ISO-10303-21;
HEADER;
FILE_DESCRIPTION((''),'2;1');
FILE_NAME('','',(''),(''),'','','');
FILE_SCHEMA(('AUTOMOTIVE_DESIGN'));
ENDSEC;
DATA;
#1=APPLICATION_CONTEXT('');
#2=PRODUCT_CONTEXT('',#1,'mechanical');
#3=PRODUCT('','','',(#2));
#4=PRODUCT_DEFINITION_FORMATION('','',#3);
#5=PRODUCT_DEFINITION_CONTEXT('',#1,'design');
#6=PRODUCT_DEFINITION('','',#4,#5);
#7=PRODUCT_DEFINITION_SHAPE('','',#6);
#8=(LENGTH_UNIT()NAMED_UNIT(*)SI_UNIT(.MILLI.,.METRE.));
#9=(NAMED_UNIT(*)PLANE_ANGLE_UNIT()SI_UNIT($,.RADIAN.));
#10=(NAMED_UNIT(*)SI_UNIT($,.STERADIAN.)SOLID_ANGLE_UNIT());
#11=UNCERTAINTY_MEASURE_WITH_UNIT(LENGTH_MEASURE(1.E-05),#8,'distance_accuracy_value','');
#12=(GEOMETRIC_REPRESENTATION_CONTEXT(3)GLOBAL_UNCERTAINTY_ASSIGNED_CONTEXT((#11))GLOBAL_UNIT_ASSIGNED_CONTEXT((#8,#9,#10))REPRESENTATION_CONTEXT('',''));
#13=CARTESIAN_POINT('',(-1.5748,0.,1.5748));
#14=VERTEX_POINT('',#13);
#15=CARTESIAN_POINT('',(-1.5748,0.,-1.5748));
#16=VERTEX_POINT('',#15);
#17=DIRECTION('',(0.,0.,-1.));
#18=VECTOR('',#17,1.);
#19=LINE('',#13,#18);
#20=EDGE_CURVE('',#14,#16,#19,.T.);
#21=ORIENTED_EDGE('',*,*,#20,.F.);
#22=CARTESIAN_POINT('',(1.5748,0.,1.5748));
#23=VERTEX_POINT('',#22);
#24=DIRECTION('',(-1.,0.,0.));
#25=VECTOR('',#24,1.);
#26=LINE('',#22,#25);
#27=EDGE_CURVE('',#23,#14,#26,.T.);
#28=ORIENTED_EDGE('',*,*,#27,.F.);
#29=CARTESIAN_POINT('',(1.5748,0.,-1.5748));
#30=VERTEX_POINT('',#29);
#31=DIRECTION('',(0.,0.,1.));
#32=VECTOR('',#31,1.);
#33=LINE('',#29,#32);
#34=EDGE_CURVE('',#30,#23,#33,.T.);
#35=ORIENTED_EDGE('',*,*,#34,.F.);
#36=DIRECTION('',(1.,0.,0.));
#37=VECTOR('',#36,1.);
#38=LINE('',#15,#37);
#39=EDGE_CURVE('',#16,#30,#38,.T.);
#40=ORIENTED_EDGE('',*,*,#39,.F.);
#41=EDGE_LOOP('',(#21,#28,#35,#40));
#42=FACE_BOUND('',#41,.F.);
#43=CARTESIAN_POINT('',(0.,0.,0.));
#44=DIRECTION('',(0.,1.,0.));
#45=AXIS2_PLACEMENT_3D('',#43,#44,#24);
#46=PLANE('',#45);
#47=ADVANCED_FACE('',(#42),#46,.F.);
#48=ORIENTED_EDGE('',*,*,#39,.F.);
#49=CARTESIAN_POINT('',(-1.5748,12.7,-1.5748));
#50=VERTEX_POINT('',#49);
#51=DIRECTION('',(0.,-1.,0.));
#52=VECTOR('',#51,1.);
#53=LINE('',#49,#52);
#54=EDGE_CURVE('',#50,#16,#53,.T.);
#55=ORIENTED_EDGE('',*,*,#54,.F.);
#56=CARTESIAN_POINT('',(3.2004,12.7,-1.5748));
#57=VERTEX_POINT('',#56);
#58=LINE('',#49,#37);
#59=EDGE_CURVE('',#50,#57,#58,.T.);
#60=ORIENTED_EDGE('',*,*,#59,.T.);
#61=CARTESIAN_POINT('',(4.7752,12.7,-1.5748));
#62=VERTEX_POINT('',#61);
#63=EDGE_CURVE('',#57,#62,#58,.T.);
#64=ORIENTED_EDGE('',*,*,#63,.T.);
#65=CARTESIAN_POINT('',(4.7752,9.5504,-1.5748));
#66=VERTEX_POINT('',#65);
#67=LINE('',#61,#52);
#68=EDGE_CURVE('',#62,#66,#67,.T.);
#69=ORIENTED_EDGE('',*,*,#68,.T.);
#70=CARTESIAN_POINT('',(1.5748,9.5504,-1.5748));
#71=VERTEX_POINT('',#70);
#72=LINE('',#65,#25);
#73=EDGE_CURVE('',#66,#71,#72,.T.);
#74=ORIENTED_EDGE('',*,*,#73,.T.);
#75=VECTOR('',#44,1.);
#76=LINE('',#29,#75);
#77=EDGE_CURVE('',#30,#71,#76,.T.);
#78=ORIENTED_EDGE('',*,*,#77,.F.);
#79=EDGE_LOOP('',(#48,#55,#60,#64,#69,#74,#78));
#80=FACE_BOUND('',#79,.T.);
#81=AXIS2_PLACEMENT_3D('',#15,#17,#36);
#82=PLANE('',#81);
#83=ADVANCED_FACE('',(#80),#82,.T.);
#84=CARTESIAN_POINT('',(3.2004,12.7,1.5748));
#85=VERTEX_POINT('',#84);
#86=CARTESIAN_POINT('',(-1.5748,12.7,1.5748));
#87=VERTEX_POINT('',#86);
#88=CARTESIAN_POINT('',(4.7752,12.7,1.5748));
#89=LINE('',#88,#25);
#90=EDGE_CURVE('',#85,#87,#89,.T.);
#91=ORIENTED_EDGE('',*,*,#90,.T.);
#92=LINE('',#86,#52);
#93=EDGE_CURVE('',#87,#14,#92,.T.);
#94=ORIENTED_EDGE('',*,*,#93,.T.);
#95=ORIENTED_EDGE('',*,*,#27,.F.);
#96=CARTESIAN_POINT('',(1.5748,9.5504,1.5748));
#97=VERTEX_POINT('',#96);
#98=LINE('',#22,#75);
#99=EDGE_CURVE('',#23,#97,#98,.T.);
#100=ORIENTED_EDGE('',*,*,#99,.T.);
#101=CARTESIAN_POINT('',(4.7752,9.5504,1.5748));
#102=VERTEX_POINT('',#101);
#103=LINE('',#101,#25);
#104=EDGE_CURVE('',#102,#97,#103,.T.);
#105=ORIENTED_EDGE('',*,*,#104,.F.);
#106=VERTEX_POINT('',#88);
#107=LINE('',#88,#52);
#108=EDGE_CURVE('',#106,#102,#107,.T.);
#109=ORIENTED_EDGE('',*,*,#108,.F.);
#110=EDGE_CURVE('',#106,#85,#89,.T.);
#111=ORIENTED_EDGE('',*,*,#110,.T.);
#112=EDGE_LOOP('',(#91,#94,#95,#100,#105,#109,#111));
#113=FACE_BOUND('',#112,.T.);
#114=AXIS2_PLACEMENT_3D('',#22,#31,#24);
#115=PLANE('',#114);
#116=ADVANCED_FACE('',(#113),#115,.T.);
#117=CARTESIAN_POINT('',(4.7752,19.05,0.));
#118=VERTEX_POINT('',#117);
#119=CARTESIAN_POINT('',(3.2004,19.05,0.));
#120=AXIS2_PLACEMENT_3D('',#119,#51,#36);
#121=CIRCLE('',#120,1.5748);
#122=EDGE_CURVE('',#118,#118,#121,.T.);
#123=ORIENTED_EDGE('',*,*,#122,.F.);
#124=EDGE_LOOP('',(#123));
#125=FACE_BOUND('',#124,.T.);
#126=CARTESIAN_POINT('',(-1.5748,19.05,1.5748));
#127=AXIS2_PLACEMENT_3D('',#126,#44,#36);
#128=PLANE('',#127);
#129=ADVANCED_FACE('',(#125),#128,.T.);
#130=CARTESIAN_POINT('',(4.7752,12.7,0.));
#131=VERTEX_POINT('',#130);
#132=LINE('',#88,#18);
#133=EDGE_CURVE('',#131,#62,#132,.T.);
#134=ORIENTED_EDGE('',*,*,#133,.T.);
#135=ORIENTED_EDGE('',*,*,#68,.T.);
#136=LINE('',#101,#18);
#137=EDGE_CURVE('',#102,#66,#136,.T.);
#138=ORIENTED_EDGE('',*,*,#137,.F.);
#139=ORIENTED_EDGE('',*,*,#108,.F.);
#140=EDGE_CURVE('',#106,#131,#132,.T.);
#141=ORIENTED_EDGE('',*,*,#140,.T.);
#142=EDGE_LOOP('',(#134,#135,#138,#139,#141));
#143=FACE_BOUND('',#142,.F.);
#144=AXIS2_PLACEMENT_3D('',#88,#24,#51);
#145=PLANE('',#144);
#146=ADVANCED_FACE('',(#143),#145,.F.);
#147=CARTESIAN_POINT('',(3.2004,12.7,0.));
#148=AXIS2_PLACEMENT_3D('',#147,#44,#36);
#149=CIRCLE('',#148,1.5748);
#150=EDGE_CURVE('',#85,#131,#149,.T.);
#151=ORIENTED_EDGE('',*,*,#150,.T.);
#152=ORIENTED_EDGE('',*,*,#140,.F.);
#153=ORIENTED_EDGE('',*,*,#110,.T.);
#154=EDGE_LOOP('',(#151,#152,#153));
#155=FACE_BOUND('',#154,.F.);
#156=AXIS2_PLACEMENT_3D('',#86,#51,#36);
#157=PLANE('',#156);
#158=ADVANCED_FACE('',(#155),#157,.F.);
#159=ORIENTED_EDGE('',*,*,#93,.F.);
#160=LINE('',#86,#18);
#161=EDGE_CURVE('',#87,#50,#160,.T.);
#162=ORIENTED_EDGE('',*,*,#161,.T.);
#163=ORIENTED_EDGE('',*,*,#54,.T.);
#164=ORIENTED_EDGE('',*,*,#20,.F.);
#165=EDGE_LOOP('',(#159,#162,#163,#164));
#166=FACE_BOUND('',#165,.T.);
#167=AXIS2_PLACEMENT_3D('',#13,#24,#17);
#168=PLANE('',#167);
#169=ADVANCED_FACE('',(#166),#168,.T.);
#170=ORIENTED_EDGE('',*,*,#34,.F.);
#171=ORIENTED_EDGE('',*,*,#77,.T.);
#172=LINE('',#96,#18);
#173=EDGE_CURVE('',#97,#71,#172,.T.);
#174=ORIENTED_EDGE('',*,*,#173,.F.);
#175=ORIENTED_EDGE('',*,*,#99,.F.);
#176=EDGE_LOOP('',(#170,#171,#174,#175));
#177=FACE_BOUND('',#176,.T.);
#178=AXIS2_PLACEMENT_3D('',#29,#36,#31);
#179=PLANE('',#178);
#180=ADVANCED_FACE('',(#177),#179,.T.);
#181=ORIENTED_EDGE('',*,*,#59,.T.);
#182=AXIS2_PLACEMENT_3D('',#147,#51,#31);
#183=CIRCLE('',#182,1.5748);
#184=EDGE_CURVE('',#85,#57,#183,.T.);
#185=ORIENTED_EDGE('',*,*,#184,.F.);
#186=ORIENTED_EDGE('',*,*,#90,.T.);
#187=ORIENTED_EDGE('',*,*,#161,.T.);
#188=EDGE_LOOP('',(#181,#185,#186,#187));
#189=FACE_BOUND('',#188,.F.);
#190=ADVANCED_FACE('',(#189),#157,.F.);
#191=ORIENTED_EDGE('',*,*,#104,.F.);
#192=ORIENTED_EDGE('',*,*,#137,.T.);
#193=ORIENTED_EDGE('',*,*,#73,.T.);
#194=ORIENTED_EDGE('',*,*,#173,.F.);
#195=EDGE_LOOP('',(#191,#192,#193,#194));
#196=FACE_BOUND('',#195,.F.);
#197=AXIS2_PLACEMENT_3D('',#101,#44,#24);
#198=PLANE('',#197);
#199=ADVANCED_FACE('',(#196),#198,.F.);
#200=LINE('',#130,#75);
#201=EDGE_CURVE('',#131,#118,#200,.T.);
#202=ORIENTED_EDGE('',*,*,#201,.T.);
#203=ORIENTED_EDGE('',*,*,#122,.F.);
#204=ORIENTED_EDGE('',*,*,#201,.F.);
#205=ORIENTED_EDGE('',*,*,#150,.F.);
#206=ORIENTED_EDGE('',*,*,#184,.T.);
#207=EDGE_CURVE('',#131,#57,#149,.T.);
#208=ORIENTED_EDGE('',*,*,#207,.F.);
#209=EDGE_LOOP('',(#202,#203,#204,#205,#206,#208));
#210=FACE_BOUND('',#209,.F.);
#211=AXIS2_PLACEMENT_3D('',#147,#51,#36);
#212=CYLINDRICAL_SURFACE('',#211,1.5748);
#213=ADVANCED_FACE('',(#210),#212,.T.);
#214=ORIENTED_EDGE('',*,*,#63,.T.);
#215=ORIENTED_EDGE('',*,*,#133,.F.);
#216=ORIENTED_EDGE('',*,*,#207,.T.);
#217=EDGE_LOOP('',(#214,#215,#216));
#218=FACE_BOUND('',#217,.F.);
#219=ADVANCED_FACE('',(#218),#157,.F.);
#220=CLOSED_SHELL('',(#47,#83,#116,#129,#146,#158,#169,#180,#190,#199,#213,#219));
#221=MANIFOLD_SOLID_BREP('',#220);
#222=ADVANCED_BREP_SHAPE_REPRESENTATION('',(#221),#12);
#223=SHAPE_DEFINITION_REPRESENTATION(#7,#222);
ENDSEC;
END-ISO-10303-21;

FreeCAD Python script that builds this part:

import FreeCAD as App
import Part
import Sketcher
Q = App.Units.Quantity

doc = App.newDocument("Part")
body = doc.addObject("PartDesign::Body", "Body")

# Sketch on XZ plane
sketch1 = body.newObject("Sketcher::SketchObject", "Sketch")
sketch1.AttachmentSupport = (doc.getObject("XZ_Plane"), [""])
sketch1.MapMode = "FlatFace"
sketch1.addGeometry(Part.LineSegment(App.Vector(-1.6, 1.6, 0), App.Vector(1.6, 1.6, 0)), False)
sketch1.addGeometry(Part.LineSegment(App.Vector(1.6, 1.6, 0), App.Vector(1.6, -1.6, 0)), False)
sketch1.addGeometry(Part.LineSegment(App.Vector(1.6, -1.6, 0), App.Vector(-1.6, -1.6, 0)), False)
sketch1.addGeometry(Part.LineSegment(App.Vector(-1.6, -1.6, 0), App.Vector(-1.6, 1.6, 0)), False)
sketch1.addConstraint(Sketcher.Constraint("Coincident", 0, 2, 1, 1))
sketch1.addConstraint(Sketcher.Constraint("Coincident", 1, 2, 2, 1))
sketch1.addConstraint(Sketcher.Constraint("Coincident", 2, 2, 3, 1))
sketch1.addConstraint(Sketcher.Constraint("Coincident", 3, 2, 0, 1))
sketch1.addConstraint(Sketcher.Constraint("Horizontal", 0))
sketch1.addConstraint(Sketcher.Constraint("Vertical", 1))
sketch1.addConstraint(Sketcher.Constraint("Horizontal", 2))
sketch1.addConstraint(Sketcher.Constraint("Vertical", 3))
sketch1.addConstraint(Sketcher.Constraint("Symmetric", 0, 2, 2, 2, -1, 1))
sketch1.addConstraint(Sketcher.Constraint("Equal", 2, 1))
sketch1.addConstraint(Sketcher.Constraint("DistanceX", 0, 1, 0, 2, Q("0.124 in")))
pad1 = body.newObject("PartDesign::Pad", "Pad")
pad1.Profile = sketch1
pad1.Length = Q("0.25 in")
pad1.Reversed = True

# Sketch on XY plane
sketch2 = body.newObject("Sketcher::SketchObject", "Sketch001")
sketch2.AttachmentSupport = (doc.getObject("XY_Plane"), [""])
sketch2.MapMode = "FlatFace"
sketch2.AttachmentOffset = App.Placement(App.Vector(0, 0, 0.062 * 25.4), App.Rotation())
sketch2.addGeometry(Part.LineSegment(App.Vector(-1.6, 0, 0), App.Vector(1.6, 0, 0)), False)
sketch2.addGeometry(Part.LineSegment(App.Vector(1.6, 0, 0), App.Vector(1.6, 9.6, 0)), False)
sketch2.addGeometry(Part.LineSegment(App.Vector(1.6, 9.6, 0), App.Vector(4.8, 9.6, 0)), False)
sketch2.addGeometry(Part.LineSegment(App.Vector(4.8, 9.6, 0), App.Vector(4.8, 12.7, 0)), False)
sketch2.addGeometry(Part.LineSegment(App.Vector(4.8, 12.7, 0), App.Vector(-1.6, 12.7, 0)), False)
sketch2.addGeometry(Part.LineSegment(App.Vector(-1.6, 12.7, 0), App.Vector(-1.6, 0, 0)), False)
sketch2.addConstraint(Sketcher.Constraint("Coincident", 0, 2, 1, 1))
sketch2.addConstraint(Sketcher.Constraint("Coincident", 1, 2, 2, 1))
sketch2.addConstraint(Sketcher.Constraint("Coincident", 2, 2, 3, 1))
sketch2.addConstraint(Sketcher.Constraint("Coincident", 3, 2, 4, 1))
sketch2.addConstraint(Sketcher.Constraint("Coincident", 4, 2, 5, 1))
sketch2.addConstraint(Sketcher.Constraint("Coincident", 5, 2, 0, 1))
sketch2.addConstraint(Sketcher.Constraint("Horizontal", 0))
sketch2.addConstraint(Sketcher.Constraint("Vertical", 1))
sketch2.addConstraint(Sketcher.Constraint("Horizontal", 2))
sketch2.addConstraint(Sketcher.Constraint("Vertical", 3))
sketch2.addConstraint(Sketcher.Constraint("Horizontal", 4))
sketch2.addConstraint(Sketcher.Constraint("Vertical", 5))
sketch2.addConstraint(Sketcher.Constraint("Symmetric", 0, 2, 5, 2, -1, 1))
sketch2.addConstraint(Sketcher.Constraint("Equal", 0, 3))
sketch2.addConstraint(Sketcher.Constraint("DistanceY", 5, 2, 5, 1, Q("0.5 in")))
sketch2.addConstraint(Sketcher.Constraint("DistanceX", 4, 2, 4, 1, Q("0.25 in")))
sketch2.addConstraint(Sketcher.Constraint("DistanceX", 0, 1, 0, 2, Q("0.124 in")))
pad2 = body.newObject("PartDesign::Pad", "Pad001")
pad2.Profile = sketch2
pad2.Length = Q("0.124 in")
pad2.Reversed = True

# Sketch on XZ plane
sketch3 = body.newObject("Sketcher::SketchObject", "Sketch002")
sketch3.AttachmentSupport = (doc.getObject("XZ_Plane"), [""])
sketch3.MapMode = "FlatFace"
sketch3.AttachmentOffset = App.Placement(App.Vector(0, 0, -0.5 * 25.4), App.Rotation())
sketch3.addGeometry(Part.Circle(App.Vector(3.2, 0, 0), App.Vector(0, 0, 1), 1.6), False)
sketch3.addConstraint(Sketcher.Constraint("PointOnObject", 0, 3, -1))
sketch3.addConstraint(Sketcher.Constraint("Diameter", 0, Q("0.124 in")))
sketch3.addConstraint(Sketcher.Constraint("DistanceX", -1, 1, 0, 3, Q("0.126 in")))
pad3 = body.newObject("PartDesign::Pad", "Pad002")
pad3.Profile = sketch3
pad3.Length = Q("0.25 in")
pad3.Reversed = True

doc.recompute()
